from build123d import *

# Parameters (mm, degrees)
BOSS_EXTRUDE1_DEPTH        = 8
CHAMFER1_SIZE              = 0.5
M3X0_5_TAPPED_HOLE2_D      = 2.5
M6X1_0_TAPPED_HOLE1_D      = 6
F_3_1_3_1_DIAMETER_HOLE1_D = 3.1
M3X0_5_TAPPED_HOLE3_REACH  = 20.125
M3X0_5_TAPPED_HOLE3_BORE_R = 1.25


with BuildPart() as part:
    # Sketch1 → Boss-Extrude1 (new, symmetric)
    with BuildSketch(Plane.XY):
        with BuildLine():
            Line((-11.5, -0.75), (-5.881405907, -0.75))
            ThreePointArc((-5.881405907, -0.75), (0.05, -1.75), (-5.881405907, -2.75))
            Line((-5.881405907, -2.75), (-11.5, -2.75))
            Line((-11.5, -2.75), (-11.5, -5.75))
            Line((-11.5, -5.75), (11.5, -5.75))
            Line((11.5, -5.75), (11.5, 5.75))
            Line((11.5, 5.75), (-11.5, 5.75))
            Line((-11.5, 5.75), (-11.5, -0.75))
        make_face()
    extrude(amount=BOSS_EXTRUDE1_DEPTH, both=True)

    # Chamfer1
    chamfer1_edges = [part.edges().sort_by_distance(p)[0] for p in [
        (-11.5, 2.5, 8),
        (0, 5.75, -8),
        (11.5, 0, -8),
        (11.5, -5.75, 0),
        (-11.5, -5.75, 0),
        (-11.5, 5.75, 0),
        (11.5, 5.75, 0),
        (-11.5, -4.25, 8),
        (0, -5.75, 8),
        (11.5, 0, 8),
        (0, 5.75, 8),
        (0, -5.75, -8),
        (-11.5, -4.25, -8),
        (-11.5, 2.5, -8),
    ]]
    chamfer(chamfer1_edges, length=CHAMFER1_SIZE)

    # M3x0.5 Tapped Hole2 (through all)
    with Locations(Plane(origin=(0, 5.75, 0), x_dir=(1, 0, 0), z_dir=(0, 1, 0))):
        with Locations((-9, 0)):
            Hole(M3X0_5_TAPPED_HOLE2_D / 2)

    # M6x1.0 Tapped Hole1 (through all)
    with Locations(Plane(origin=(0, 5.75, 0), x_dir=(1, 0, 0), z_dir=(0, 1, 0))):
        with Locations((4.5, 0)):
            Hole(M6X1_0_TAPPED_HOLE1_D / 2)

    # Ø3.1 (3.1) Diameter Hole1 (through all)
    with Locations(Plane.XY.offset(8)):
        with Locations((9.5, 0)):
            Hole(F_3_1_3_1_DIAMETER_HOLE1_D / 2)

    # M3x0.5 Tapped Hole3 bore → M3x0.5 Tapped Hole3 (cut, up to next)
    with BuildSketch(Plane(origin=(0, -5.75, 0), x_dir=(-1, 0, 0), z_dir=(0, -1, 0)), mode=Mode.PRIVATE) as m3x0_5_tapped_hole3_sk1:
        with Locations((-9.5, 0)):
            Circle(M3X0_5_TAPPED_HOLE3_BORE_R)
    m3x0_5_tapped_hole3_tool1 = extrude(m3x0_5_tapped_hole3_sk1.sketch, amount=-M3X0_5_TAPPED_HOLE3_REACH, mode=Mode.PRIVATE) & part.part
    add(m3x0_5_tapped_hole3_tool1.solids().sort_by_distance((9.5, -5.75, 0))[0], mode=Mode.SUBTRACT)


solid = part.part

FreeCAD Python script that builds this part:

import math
import FreeCAD as App
import Part
import Sketcher


def edges_at(feature, points):
    """Names of the edges that pass closest to the given points."""
    edges = feature.Shape.Edges
    near = lambda p: min(range(len(edges)), key=lambda i: edges[i].distToShape(Part.Vertex(*p))[0])
    return sorted({f"Edge{near(p) + 1}" for p in points})

doc = App.newDocument("Part")
body = doc.addObject("PartDesign::Body", "Body")

# Sketch on XY plane
sketch1 = body.newObject("Sketcher::SketchObject", "Sketch")
sketch1.AttachmentSupport = (doc.getObject("XY_Plane"), [""])
sketch1.MapMode = "FlatFace"
sketch1.addGeometry(Part.LineSegment(App.Vector(-11.5, -0.75, 0), App.Vector(-5.881406, -0.75, 0)), False)
sketch1.addGeometry(Part.ArcOfCircle(Part.Circle(App.Vector(-3, -1.75, 0), App.Vector(0, 0, 1), 3.05), math.radians(-160.860526), math.radians(160.860526)), False)
sketch1.addGeometry(Part.LineSegment(App.Vector(-5.881406, -2.75, 0), App.Vector(-11.5, -2.75, 0)), False)
sketch1.addGeometry(Part.LineSegment(App.Vector(-11.5, -2.75, 0), App.Vector(-11.5, -5.75, 0)), False)
sketch1.addGeometry(Part.LineSegment(App.Vector(-11.5, -5.75, 0), App.Vector(11.5, -5.75, 0)), False)
sketch1.addGeometry(Part.LineSegment(App.Vector(11.5, -5.75, 0), App.Vector(11.5, 5.75, 0)), False)
sketch1.addGeometry(Part.LineSegment(App.Vector(11.5, 5.75, 0), App.Vector(-11.5, 5.75, 0)), False)
sketch1.addGeometry(Part.LineSegment(App.Vector(-11.5, 5.75, 0), App.Vector(-11.5, -0.75, 0)), False)
sketch1.addConstraint(Sketcher.Constraint("Coincident", 0, 2, 1, 2))
sketch1.addConstraint(Sketcher.Constraint("Coincident", 1, 1, 2, 1))
sketch1.addConstraint(Sketcher.Constraint("Coincident", 2, 2, 3, 1))
sketch1.addConstraint(Sketcher.Constraint("Coincident", 3, 2, 4, 1))
sketch1.addConstraint(Sketcher.Constraint("Coincident", 4, 2, 5, 1))
sketch1.addConstraint(Sketcher.Constraint("Coincident", 5, 2, 6, 1))
sketch1.addConstraint(Sketcher.Constraint("Coincident", 6, 2, 7, 1))
sketch1.addConstraint(Sketcher.Constraint("Coincident", 7, 2, 0, 1))
sketch1.addConstraint(Sketcher.Constraint("Horizontal", 0))
sketch1.addConstraint(Sketcher.Constraint("Horizontal", 2))
sketch1.addConstraint(Sketcher.Constraint("Vertical", 3))
sketch1.addConstraint(Sketcher.Constraint("Horizontal", 4))
sketch1.addConstraint(Sketcher.Constraint("Vertical", 5))
sketch1.addConstraint(Sketcher.Constraint("Horizontal", 6))
sketch1.addConstraint(Sketcher.Constraint("Vertical", 7))
sketch1.addConstraint(Sketcher.Constraint("Symmetric", 3, 2, 5, 2, -1, 1))
sketch1.addConstraint(Sketcher.Constraint("Vertical", 0, 2, 1, 1))
sketch1.addConstraint(Sketcher.Constraint("Vertical", 3, 2, 6, 2))
sketch1.addConstraint(Sketcher.Constraint("DistanceX", 4, 1, 4, 2, 23.0))
sketch1.addConstraint(Sketcher.Constraint("DistanceY", 3, 2, 3, 1, 3.0))
sketch1.addConstraint(Sketcher.Constraint("Radius", 1, 3.05))
sketch1.addConstraint(Sketcher.Constraint("DistanceY", 5, 1, 5, 2, 11.5))
sketch1.addConstraint(Sketcher.Constraint("DistanceY", 7, 2, 7, 1, 6.5))
sketch1.addConstraint(Sketcher.Constraint("DistanceX", 1, 3, -1, 1, 3.0))
pad1 = body.newObject("PartDesign::Pad", "Pad")
pad1.Profile = sketch1
pad1.Length = 16
pad1.Midplane = True
doc.recompute()

chamfer = body.newObject("PartDesign::Chamfer", "Chamfer")
chamfer.Base = (pad1, edges_at(pad1, [
    (-11.5, 2.5, 8),
    (0, 5.75, -8),
    (11.5, 0, -8),
    (11.5, -5.75, 0),
    (-11.5, -5.75, 0),
    (-11.5, 5.75, 0),
    (11.5, 5.75, 0),
    (-11.5, -4.25, 8),
    (0, -5.75, 8),
    (11.5, 0, 8),
    (0, 5.75, 8),
    (0, -5.75, -8),
    (-11.5, -4.25, -8),
    (-11.5, 2.5, -8),
]))
chamfer.Size = 0.5

# Sketch on XZ plane
sketch2 = body.newObject("Sketcher::SketchObject", "Sketch001")
sketch2.AttachmentSupport = (doc.getObject("XZ_Plane"), [""])
sketch2.MapMode = "FlatFace"
sketch2.AttachmentOffset = App.Placement(App.Vector(0, 0, -5.75), App.Rotation())
sketch2.addGeometry(Part.Circle(App.Vector(-9, 0, 0), App.Vector(0, 0, 1), 1.25), False)
sketch2.addConstraint(Sketcher.Constraint("PointOnObject", 0, 3, -1))
sketch2.addConstraint(Sketcher.Constraint("Diameter", 0, 2.5))
sketch2.addConstraint(Sketcher.Constraint("DistanceX", 0, 3, -1, 1, 9.0))
doc.recompute()
hole = body.newObject("PartDesign::Hole", "Hole")
hole.Profile = sketch2
hole.ThreadType = "None"
hole.Diameter = 2.5
hole.DepthType = "ThroughAll"
hole.Reversed = True

# Sketch on XZ plane
sketch3 = body.newObject("Sketcher::SketchObject", "Sketch002")
sketch3.AttachmentSupport = (doc.getObject("XZ_Plane"), [""])
sketch3.MapMode = "FlatFace"
sketch3.AttachmentOffset = App.Placement(App.Vector(0, 0, -5.75), App.Rotation())
sketch3.addGeometry(Part.Circle(App.Vector(4.5, 0, 0), App.Vector(0, 0, 1), 3), False)
sketch3.addConstraint(Sketcher.Constraint("PointOnObject", 0, 3, -1))
sketch3.addConstraint(Sketcher.Constraint("Diameter", 0, 6.0))
sketch3.addConstraint(Sketcher.Constraint("DistanceX", -1, 1, 0, 3, 4.5))
doc.recompute()
hole2 = body.newObject("PartDesign::Hole", "Hole001")
hole2.Profile = sketch3
hole2.ThreadType = "None"
hole2.Diameter = 6
hole2.DepthType = "ThroughAll"
hole2.Reversed = True

# Sketch on XY plane
sketch4 = body.newObject("Sketcher::SketchObject", "Sketch003")
sketch4.AttachmentSupport = (doc.getObject("XY_Plane"), [""])
sketch4.MapMode = "FlatFace"
sketch4.AttachmentOffset = App.Placement(App.Vector(0, 0, 8), App.Rotation())
sketch4.addGeometry(Part.Circle(App.Vector(9.5, 0, 0), App.Vector(0, 0, 1), 1.55), False)
sketch4.addConstraint(Sketcher.Constraint("PointOnObject", 0, 3, -1))
sketch4.addConstraint(Sketcher.Constraint("Diameter", 0, 3.1))
sketch4.addConstraint(Sketcher.Constraint("DistanceX", -1, 1, 0, 3, 9.5))
doc.recompute()
hole3 = body.newObject("PartDesign::Hole", "Hole002")
hole3.Profile = sketch4
hole3.ThreadType = "None"
hole3.Diameter = 3.1
hole3.DepthType = "ThroughAll"

# Sketch on XZ plane
sketch5 = body.newObject("Sketcher::SketchObject", "Sketch004")
sketch5.AttachmentSupport = (doc.getObject("XZ_Plane"), [""])
sketch5.MapMode = "FlatFace"
sketch5.AttachmentOffset = App.Placement(App.Vector(0, 0, 5.75), App.Rotation())
sketch5.addGeometry(Part.Circle(App.Vector(9.5, 0, 0), App.Vector(0, 0, 1), 1.25), False)
sketch5.addConstraint(Sketcher.Constraint("PointOnObject", 0, 3, -1))
sketch5.addConstraint(Sketcher.Constraint("Diameter", 0, 2.5))
sketch5.addConstraint(Sketcher.Constraint("DistanceX", -1, 1, 0, 3, 9.5))
pocket1 = body.newObject("PartDesign::Pocket", "Pocket")
pocket1.Profile = sketch5
pocket1.Type = "UpToFirst"

doc.recompute()
